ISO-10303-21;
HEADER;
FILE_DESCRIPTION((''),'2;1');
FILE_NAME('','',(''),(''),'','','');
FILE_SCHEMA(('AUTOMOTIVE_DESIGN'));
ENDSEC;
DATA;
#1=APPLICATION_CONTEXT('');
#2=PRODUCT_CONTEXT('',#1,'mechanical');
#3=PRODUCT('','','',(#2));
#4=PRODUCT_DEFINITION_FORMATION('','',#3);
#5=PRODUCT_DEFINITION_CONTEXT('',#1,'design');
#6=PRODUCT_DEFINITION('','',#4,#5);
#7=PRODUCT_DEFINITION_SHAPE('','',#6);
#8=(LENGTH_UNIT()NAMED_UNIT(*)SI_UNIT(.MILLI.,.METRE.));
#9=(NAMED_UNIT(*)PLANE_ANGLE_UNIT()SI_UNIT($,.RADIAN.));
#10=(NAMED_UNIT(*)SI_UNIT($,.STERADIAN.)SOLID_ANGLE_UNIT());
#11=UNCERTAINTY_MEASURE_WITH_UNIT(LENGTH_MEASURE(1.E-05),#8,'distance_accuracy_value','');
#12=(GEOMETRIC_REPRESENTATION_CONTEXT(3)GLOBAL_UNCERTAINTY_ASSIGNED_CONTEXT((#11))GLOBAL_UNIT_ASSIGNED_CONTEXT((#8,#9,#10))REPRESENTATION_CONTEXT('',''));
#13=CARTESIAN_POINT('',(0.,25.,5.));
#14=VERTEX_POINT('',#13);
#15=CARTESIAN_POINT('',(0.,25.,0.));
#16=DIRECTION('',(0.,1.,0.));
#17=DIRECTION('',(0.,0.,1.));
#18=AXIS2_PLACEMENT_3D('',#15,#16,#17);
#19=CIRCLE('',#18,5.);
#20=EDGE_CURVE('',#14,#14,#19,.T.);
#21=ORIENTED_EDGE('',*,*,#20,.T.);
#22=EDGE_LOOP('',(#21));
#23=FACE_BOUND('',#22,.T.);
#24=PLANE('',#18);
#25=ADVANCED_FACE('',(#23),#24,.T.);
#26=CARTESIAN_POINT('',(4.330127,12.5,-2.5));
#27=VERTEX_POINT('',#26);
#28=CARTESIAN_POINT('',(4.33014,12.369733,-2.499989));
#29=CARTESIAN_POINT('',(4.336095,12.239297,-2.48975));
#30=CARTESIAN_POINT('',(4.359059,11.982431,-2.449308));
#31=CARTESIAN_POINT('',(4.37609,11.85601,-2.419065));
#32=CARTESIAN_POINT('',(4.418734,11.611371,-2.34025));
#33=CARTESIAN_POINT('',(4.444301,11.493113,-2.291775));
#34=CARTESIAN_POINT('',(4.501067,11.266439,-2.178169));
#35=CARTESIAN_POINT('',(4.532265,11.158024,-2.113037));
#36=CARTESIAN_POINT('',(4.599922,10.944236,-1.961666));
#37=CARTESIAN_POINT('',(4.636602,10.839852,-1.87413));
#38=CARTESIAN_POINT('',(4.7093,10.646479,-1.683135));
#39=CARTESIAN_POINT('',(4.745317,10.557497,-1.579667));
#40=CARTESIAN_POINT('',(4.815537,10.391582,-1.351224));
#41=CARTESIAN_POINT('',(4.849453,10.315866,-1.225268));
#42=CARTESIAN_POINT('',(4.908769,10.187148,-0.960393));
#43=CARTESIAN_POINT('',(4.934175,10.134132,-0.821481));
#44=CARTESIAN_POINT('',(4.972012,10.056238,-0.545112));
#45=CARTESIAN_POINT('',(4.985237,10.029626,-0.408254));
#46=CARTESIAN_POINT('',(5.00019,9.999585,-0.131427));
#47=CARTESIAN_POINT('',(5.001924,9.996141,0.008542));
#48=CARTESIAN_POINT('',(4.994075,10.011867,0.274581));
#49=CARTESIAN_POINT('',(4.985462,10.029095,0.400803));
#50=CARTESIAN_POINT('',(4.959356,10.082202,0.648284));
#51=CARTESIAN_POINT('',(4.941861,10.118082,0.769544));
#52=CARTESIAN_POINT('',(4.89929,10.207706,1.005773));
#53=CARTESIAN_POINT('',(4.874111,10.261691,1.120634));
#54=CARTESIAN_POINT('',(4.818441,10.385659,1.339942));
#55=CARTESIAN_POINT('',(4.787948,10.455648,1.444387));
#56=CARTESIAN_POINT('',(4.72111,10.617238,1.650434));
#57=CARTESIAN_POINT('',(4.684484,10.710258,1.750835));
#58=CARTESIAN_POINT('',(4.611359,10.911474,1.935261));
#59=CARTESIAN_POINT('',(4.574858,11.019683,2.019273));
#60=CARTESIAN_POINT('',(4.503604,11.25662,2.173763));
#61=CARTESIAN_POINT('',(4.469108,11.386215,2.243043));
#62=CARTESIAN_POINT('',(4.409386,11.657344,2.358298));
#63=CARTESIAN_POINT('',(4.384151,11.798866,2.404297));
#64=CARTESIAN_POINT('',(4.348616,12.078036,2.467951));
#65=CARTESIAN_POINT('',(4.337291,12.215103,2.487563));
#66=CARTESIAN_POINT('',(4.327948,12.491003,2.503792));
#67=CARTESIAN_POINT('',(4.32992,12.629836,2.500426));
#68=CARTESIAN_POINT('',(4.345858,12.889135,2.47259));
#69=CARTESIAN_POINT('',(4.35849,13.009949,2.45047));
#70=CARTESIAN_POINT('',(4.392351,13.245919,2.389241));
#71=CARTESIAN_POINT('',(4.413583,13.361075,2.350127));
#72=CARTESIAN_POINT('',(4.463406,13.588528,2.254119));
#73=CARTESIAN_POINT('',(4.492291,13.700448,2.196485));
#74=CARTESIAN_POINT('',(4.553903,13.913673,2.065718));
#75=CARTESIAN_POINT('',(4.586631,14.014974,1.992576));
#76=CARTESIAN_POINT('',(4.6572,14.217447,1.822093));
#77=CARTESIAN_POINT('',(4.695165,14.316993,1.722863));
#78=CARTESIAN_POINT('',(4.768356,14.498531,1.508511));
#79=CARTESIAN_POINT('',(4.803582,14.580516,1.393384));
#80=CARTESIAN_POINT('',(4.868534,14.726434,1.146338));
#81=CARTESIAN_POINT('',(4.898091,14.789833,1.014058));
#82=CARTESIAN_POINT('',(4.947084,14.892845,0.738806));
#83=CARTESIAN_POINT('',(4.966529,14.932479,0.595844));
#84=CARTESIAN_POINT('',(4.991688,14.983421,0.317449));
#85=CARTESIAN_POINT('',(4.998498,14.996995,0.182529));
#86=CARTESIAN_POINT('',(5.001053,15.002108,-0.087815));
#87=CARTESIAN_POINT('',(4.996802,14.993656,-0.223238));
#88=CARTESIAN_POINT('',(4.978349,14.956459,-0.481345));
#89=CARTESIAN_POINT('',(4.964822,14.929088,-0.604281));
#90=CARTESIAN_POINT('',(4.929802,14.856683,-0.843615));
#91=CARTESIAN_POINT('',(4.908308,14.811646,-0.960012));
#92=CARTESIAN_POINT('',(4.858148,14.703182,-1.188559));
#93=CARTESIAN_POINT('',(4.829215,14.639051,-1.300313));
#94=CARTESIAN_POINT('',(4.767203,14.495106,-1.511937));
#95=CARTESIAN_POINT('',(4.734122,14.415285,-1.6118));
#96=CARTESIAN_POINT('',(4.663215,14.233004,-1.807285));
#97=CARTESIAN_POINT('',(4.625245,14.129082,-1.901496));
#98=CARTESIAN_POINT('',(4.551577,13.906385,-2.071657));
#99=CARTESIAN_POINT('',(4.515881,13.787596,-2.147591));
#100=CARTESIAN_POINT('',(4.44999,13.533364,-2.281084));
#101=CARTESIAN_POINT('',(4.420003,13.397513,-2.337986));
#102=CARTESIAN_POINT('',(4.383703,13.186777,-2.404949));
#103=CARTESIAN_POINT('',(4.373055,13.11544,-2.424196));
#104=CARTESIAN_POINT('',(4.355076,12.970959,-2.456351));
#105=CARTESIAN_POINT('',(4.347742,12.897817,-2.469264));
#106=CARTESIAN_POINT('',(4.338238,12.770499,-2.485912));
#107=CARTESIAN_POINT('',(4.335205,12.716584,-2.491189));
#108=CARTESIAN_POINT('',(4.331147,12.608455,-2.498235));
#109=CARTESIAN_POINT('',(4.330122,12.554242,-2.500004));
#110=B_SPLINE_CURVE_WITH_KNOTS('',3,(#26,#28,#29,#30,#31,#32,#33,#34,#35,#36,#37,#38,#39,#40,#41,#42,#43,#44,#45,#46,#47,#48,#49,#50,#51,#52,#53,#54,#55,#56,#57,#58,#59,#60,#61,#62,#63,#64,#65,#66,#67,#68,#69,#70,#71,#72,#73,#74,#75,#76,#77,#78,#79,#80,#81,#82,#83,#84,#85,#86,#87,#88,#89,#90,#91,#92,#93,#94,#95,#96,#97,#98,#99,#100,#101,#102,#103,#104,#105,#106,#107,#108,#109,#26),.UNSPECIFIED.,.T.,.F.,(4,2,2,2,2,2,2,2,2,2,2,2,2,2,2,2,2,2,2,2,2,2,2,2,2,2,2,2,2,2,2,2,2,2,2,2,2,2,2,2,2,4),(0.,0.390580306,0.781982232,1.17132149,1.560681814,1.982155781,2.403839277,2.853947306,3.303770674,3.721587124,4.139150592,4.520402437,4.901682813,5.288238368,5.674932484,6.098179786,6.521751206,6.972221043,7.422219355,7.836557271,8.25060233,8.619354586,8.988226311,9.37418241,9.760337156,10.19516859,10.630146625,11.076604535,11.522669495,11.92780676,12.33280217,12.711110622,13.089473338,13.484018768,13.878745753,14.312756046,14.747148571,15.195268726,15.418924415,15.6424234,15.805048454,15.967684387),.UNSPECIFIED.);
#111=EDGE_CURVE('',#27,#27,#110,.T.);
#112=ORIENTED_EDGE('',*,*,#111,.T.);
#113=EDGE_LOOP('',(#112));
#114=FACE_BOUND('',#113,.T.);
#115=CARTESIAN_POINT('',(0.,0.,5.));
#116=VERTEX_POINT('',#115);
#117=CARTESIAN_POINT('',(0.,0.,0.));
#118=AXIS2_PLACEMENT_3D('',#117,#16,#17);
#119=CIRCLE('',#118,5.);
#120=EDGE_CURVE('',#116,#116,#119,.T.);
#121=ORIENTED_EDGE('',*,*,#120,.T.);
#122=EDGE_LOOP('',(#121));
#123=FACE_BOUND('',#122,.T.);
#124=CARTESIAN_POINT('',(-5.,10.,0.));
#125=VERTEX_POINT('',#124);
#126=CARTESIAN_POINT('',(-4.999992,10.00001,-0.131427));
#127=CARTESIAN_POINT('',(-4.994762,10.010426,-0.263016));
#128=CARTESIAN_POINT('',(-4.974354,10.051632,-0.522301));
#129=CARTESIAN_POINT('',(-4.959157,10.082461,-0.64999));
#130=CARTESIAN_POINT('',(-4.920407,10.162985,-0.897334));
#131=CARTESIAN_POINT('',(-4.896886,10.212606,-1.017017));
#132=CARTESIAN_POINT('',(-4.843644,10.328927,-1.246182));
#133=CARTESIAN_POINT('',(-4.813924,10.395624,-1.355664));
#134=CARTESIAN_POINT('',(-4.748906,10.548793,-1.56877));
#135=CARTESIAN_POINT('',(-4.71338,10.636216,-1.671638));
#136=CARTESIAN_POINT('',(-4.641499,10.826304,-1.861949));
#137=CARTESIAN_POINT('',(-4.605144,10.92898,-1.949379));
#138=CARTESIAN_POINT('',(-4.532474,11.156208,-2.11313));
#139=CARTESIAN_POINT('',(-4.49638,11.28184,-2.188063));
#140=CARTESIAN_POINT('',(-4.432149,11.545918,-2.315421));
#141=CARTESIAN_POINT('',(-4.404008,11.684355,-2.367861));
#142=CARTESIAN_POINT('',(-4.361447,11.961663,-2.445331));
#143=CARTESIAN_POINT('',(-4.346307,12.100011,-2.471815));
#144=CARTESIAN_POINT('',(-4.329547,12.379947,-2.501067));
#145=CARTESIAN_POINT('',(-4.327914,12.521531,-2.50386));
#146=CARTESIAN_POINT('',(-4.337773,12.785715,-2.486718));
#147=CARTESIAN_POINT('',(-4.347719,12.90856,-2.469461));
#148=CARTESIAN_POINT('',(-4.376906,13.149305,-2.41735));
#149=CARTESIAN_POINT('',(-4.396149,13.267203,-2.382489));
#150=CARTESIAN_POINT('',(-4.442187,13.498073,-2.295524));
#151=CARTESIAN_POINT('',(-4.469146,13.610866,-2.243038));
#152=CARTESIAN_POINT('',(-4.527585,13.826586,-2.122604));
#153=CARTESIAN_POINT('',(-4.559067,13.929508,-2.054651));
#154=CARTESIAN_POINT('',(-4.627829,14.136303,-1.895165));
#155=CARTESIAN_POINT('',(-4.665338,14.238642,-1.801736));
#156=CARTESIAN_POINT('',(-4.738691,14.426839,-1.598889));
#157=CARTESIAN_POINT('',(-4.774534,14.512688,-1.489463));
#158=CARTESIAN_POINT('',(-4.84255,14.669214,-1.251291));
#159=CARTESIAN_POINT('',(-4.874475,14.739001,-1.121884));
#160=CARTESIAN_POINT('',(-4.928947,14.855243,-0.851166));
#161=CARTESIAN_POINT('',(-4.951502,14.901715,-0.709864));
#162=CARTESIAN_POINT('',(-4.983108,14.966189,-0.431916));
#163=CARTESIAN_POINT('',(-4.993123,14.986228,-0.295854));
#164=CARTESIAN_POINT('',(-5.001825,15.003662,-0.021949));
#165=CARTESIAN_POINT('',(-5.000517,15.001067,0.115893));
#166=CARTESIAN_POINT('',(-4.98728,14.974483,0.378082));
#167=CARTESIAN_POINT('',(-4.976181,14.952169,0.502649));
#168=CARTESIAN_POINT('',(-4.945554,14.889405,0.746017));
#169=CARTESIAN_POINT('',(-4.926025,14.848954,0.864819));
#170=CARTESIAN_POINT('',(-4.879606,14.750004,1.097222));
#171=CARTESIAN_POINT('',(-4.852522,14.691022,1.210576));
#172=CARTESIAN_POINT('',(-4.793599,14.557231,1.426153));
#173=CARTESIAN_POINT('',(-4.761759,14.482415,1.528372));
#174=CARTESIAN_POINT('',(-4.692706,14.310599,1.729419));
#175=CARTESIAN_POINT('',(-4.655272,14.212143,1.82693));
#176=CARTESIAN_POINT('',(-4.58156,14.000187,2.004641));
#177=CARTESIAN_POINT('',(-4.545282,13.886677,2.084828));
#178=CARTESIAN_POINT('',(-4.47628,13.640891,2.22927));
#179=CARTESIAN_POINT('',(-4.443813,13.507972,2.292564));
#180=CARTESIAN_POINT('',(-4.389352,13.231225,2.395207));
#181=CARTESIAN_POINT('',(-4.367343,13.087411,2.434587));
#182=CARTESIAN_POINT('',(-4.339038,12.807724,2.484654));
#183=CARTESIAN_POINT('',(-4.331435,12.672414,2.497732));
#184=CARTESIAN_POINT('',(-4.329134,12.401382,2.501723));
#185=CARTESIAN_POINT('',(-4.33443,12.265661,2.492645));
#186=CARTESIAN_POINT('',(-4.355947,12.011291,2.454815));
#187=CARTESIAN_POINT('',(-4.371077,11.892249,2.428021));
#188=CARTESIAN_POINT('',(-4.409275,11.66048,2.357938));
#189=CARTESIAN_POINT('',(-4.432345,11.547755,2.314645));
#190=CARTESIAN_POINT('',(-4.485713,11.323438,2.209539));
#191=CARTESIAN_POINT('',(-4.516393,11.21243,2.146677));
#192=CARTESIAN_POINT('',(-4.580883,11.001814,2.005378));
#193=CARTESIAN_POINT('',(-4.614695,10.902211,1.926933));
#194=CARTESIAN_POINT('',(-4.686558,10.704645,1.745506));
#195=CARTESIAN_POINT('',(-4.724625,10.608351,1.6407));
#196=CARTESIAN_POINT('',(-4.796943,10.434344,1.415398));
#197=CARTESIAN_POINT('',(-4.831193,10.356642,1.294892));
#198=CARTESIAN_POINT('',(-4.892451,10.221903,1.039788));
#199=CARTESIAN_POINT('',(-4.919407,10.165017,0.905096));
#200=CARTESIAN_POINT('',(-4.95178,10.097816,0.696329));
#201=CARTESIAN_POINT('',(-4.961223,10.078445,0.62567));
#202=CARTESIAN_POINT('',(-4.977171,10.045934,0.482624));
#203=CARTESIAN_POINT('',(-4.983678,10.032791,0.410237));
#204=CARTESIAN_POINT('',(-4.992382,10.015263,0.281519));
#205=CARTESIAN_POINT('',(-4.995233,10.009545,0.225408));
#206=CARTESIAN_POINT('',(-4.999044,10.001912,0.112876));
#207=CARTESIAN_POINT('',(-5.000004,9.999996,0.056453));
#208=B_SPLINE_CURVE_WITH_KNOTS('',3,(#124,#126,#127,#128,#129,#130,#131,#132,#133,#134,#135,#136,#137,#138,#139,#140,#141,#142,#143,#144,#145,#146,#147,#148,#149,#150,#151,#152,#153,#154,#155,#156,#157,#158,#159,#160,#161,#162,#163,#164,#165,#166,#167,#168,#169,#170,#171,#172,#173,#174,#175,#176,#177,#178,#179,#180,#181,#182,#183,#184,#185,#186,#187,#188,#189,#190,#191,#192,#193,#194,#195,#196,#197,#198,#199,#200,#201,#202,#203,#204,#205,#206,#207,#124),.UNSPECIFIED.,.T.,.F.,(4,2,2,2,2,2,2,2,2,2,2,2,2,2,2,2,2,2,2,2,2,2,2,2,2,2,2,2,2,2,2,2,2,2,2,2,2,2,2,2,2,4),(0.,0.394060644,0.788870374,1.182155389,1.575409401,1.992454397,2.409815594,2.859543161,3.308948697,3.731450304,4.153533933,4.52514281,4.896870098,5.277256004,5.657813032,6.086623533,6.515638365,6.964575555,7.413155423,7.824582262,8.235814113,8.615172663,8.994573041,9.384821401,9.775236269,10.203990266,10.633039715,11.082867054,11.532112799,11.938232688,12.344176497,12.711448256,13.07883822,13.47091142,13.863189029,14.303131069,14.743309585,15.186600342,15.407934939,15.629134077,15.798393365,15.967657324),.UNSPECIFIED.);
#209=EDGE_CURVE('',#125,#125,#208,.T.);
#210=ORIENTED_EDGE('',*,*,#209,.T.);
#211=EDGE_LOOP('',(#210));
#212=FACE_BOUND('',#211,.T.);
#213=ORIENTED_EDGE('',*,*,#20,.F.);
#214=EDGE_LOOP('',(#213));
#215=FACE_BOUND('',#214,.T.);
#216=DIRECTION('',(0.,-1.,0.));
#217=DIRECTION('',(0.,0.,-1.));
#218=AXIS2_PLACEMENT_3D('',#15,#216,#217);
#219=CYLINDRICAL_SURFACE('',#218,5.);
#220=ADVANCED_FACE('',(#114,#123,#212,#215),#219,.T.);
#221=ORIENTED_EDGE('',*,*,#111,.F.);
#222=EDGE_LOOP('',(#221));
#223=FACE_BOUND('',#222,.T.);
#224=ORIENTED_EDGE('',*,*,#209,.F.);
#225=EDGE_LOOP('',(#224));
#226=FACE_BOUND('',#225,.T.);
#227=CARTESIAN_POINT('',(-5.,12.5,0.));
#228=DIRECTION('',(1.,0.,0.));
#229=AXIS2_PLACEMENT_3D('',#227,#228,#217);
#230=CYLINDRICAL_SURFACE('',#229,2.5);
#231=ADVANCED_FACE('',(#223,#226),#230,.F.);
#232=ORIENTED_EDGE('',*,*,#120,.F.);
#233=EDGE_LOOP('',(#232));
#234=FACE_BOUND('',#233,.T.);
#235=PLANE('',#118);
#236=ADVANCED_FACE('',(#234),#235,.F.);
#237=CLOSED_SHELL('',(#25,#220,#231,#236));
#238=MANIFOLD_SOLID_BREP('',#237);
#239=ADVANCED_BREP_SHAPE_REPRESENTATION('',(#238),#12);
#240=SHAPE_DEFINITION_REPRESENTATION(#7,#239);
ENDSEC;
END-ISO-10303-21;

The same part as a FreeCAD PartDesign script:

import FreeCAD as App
import Part
import Sketcher

doc = App.newDocument("Part")
params = doc.addObject("Spreadsheet::Sheet", "Params")
for row, (alias, value) in enumerate([
    ("sketch1_diameter", "10 mm"),
    ("pad1_length", "25 mm"),
    ("sketch2_diameter", "5 mm"),
    ("pocket1_length", "10 mm"),
], start=1):
    params.set(f"A{row}", alias)
    params.set(f"B{row}", "=" + value)
    params.setAlias(f"B{row}", alias)

body = doc.addObject("PartDesign::Body", "Body")

# Sketch on XZ plane
sketch1 = body.newObject("Sketcher::SketchObject", "Sketch")
sketch1.AttachmentSupport = (doc.getObject("XZ_Plane"), [""])
sketch1.MapMode = "FlatFace"
sketch1.addGeometry(Part.Circle(App.Vector(0, 0, 0), App.Vector(0, 0, 1), 5), False)
sketch1.addConstraint([
    Sketcher.Constraint("Coincident", 0, 3, -1, 1),
    Sketcher.Constraint("Diameter", 0, 10.0),
])
sketch1.setExpression("Constraints[1]", "Params.sketch1_diameter")
pad1 = body.newObject("PartDesign::Pad", "Pad")
pad1.Profile = sketch1
pad1.setExpression("Length", "Params.pad1_length")
pad1.Reversed = True

# Sketch on YZ plane
sketch2 = body.newObject("Sketcher::SketchObject", "Sketch001")
sketch2.AttachmentSupport = (doc.getObject("YZ_Plane"), [""])
sketch2.MapMode = "FlatFace"
sketch2.addGeometry(Part.Circle(App.Vector(12.5, 0, 0), App.Vector(0, 0, 1), 2.5), False)
sketch2.addConstraint([
    Sketcher.Constraint("PointOnObject", 0, 3, -1),
    Sketcher.Constraint("Diameter", 0, 5.0),
    Sketcher.Constraint("DistanceX", -1, 1, 0, 3, 12.5),
])
sketch2.setExpression("Constraints[1]", "Params.sketch2_diameter")
pocket1 = body.newObject("PartDesign::Pocket", "Pocket")
pocket1.Profile = sketch2
pocket1.setExpression("Length", "Params.pocket1_length")
pocket1.Midplane = True

doc.recompute()
